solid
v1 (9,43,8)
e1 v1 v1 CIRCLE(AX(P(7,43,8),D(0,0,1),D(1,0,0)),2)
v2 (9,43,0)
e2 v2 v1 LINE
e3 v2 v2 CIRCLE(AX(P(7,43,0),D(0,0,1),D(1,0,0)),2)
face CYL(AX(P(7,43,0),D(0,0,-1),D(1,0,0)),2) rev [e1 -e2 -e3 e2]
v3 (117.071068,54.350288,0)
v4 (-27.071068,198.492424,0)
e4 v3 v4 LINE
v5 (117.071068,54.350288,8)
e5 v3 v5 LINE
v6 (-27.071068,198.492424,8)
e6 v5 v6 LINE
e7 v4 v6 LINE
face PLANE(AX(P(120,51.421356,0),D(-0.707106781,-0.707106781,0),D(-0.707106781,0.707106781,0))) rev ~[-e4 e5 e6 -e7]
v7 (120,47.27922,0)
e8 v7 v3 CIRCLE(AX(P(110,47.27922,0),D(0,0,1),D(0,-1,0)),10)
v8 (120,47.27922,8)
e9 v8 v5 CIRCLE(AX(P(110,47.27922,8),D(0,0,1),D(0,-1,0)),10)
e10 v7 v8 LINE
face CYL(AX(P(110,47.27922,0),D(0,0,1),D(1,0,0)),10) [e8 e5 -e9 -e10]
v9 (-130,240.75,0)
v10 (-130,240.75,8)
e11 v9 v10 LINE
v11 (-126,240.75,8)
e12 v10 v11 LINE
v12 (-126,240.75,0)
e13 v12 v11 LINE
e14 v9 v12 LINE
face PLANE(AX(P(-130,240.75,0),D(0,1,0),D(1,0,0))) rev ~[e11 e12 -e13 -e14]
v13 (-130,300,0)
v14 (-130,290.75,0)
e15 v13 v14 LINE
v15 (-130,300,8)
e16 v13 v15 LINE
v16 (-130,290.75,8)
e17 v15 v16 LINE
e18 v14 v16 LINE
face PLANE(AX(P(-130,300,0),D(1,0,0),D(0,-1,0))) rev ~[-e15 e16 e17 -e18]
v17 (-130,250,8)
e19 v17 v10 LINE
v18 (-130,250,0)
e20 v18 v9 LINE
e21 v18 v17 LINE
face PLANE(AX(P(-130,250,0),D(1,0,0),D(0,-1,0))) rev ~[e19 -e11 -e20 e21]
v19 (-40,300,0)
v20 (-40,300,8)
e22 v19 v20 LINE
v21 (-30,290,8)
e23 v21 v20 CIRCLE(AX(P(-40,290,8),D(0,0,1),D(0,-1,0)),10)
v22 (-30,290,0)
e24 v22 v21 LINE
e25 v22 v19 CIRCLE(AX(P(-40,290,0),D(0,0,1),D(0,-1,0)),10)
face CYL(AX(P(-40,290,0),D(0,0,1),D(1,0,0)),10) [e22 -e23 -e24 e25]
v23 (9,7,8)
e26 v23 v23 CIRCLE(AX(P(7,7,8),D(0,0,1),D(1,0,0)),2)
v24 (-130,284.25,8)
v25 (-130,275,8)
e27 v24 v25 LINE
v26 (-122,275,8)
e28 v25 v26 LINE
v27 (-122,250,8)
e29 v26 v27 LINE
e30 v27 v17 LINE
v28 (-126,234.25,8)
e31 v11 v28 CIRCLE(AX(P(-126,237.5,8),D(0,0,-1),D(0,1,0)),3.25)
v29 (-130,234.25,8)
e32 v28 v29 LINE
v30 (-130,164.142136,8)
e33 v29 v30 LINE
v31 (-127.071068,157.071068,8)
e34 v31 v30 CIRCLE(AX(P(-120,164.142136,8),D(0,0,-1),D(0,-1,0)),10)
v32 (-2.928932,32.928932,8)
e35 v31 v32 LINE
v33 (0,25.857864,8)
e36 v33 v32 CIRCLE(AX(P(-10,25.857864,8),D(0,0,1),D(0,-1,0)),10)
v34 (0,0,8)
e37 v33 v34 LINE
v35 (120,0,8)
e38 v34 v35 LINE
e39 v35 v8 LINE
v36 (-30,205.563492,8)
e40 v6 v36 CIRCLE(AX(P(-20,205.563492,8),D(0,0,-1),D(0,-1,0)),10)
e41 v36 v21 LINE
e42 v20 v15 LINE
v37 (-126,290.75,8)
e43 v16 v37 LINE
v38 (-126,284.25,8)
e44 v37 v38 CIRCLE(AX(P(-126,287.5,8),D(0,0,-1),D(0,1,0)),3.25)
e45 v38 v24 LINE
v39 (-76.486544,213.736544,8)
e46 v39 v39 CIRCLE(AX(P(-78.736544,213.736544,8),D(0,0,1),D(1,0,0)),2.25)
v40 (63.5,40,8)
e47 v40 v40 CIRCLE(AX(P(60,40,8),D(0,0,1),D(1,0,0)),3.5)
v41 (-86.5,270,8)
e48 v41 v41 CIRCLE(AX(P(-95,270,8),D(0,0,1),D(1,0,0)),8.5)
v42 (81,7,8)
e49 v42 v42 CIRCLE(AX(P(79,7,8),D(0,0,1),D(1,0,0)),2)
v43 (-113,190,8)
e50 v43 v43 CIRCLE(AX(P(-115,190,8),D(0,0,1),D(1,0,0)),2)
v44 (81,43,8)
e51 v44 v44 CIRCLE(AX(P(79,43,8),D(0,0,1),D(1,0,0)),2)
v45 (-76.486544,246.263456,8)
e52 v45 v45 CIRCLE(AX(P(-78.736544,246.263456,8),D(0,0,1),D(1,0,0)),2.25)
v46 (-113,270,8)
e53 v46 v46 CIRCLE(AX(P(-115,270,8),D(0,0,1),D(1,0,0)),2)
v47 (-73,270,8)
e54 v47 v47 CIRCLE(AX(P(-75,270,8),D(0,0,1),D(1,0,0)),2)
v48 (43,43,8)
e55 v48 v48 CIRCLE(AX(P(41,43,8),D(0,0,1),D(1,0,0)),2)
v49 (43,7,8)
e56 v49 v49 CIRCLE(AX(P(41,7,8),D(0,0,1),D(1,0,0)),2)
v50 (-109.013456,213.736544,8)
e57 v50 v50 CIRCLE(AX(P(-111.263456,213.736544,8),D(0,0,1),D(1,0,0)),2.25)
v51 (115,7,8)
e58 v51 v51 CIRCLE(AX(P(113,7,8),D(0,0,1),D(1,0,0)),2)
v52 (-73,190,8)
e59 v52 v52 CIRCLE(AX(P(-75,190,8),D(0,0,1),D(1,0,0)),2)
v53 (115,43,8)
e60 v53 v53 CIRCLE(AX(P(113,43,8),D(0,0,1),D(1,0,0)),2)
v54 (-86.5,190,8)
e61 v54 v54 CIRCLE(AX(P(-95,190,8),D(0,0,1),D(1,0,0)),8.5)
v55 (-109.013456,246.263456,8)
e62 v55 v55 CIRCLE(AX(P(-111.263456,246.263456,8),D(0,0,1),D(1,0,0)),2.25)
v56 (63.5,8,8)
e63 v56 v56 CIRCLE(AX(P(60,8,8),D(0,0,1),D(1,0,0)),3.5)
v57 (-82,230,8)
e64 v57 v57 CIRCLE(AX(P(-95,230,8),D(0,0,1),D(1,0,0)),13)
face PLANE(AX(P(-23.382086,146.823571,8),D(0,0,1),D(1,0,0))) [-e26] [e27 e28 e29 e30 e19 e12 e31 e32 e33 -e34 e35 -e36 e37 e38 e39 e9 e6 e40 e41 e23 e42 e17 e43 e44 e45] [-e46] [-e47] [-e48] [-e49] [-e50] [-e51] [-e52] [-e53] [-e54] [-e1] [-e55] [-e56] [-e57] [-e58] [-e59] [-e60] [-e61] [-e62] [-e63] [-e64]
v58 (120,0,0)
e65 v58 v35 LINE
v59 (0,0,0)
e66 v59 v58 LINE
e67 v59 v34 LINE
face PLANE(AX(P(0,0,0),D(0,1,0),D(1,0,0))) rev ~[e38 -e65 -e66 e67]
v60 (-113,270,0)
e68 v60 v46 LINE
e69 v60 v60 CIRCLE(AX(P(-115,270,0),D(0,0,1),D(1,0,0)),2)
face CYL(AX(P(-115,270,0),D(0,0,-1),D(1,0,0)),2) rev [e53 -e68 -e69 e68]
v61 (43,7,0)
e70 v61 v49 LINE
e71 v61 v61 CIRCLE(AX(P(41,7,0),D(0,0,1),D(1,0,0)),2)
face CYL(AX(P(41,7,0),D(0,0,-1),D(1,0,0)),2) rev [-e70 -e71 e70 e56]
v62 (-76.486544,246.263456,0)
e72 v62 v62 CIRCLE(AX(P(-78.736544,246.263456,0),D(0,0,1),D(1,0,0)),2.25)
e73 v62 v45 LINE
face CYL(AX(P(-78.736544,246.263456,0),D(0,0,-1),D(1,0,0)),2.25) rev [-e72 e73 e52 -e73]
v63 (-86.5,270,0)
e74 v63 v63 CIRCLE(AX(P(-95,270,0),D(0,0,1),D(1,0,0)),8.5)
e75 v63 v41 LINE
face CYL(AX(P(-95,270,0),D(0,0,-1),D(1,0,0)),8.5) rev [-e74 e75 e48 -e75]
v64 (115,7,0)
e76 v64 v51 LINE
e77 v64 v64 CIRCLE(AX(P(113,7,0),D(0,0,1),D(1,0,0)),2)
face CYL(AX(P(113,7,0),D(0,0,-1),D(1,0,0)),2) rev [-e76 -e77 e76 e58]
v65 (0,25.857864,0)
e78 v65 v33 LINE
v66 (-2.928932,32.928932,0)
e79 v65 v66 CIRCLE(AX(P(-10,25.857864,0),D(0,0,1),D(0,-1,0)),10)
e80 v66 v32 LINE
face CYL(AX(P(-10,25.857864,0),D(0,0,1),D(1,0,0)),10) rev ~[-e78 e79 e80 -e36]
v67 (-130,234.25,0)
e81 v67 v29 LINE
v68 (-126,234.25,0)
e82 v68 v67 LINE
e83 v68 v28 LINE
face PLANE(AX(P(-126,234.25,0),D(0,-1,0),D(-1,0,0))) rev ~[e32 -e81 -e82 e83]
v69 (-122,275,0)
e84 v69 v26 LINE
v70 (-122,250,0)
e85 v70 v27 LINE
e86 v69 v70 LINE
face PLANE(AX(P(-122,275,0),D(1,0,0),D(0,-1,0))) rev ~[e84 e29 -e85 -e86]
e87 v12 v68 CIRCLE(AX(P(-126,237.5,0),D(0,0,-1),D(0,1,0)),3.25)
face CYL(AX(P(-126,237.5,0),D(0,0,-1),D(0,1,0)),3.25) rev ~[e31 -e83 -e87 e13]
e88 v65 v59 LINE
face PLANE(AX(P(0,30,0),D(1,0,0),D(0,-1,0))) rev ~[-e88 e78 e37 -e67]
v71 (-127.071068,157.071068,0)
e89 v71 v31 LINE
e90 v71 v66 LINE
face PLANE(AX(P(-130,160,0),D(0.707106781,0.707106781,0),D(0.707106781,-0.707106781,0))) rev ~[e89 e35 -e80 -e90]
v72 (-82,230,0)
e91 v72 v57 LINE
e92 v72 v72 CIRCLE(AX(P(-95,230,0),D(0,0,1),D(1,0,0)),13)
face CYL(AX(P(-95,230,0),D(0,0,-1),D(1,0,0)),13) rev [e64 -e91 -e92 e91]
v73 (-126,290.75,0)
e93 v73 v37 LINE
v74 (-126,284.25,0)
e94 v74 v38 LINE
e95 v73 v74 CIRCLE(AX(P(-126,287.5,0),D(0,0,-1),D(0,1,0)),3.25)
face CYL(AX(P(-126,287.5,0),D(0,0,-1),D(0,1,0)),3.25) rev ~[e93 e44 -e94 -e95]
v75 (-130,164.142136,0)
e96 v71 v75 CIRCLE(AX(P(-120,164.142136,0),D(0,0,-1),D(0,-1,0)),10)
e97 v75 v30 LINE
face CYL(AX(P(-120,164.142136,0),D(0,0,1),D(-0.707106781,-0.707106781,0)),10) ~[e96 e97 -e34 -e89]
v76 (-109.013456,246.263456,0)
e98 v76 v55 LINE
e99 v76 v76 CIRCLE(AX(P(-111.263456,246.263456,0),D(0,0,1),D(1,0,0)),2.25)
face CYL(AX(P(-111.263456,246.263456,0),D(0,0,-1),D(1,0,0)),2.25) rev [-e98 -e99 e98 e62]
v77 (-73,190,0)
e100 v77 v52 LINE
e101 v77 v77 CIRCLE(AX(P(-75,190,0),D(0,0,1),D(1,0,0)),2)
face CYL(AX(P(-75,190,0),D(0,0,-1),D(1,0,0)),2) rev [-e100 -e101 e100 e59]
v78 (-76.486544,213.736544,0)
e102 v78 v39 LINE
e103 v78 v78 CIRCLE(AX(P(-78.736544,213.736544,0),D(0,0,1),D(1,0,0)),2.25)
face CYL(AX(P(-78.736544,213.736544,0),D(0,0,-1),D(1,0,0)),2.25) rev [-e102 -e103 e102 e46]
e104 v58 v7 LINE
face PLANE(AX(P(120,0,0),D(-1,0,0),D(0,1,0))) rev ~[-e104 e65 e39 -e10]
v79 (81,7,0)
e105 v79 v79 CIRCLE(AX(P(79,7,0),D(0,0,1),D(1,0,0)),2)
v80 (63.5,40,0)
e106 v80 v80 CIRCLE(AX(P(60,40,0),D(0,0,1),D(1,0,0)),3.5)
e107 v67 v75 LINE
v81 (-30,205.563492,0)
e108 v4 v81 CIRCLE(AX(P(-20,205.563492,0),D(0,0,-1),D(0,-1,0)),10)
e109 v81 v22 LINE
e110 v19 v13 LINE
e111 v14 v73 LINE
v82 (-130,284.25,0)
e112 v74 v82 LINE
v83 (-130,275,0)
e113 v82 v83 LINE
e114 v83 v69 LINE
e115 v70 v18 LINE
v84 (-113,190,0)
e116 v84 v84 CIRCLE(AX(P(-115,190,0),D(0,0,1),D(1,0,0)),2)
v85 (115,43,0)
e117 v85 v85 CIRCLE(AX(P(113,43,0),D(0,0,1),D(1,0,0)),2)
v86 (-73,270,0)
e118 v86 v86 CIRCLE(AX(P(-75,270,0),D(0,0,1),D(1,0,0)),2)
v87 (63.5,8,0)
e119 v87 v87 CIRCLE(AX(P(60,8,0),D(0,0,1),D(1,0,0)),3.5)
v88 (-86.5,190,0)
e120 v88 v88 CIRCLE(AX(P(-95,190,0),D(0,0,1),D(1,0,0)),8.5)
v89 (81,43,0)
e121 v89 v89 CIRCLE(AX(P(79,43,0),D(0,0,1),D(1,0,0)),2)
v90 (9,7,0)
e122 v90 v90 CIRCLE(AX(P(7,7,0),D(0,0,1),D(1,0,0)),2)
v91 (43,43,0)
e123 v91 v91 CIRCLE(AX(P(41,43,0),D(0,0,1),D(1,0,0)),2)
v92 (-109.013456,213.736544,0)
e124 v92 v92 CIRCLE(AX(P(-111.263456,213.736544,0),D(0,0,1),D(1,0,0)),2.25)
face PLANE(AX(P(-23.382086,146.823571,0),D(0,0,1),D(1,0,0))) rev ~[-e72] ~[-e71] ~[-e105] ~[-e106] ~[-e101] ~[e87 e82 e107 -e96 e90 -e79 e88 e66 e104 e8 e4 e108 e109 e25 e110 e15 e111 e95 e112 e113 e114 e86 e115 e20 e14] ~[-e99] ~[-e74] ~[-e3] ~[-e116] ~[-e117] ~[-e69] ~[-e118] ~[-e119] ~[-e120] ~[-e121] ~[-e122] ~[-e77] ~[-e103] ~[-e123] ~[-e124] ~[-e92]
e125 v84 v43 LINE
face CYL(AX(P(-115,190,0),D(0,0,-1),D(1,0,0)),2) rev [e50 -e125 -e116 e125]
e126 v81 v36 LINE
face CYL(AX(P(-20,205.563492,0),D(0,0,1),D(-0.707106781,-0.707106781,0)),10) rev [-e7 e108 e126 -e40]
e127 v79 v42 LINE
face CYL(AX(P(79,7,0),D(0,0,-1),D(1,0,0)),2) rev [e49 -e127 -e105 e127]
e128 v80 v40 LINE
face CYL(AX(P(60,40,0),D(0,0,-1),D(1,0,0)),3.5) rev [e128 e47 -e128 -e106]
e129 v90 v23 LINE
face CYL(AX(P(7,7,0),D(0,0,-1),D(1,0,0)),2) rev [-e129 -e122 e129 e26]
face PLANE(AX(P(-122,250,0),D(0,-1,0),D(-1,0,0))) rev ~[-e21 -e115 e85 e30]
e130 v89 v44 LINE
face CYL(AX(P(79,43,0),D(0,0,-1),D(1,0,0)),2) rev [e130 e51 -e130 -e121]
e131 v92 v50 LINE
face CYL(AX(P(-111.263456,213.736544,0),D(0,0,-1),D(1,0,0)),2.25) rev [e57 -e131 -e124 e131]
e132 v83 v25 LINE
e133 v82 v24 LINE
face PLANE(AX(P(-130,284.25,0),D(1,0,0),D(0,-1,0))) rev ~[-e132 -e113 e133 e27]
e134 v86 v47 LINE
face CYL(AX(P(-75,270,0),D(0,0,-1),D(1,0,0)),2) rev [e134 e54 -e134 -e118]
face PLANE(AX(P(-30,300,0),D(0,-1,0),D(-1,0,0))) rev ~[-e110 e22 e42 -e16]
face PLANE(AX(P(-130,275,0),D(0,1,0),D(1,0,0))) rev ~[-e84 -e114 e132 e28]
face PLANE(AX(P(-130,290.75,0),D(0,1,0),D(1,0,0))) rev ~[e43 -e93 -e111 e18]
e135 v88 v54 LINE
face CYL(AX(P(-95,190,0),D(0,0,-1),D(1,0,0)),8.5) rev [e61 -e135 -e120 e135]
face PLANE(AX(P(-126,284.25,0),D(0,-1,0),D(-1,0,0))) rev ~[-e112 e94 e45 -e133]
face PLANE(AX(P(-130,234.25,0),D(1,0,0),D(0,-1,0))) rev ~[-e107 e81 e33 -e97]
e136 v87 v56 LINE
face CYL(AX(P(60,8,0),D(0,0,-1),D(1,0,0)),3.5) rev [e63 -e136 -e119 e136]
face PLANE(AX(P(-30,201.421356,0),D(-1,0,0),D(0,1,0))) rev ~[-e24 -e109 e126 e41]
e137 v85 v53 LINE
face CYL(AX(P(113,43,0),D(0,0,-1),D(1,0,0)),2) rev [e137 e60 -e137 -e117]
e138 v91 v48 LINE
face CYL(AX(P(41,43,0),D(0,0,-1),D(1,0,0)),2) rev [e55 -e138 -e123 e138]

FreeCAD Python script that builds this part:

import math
import FreeCAD as App
import Part
import Sketcher
Q = App.Units.Quantity


def edges_at(feature, points):
    """Names of the edges that pass closest to the given points."""
    edges = feature.Shape.Edges
    near = lambda p: min(range(len(edges)), key=lambda i: edges[i].distToShape(Part.Vertex(*p))[0])
    return sorted({f"Edge{near(p) + 1}" for p in points})

doc = App.newDocument("Part")
body = doc.addObject("PartDesign::Body", "Body")

sketch1 = body.newObject("Sketcher::SketchObject", "Sketch")
sketch1.AttachmentSupport = (doc.getObject("XY_Plane"), [""])
sketch1.MapMode = "FlatFace"
sketch1.addGeometry([
    Part.LineSegment(App.Vector(0, 30, 0), App.Vector(0, 0, 0)),
    Part.LineSegment(App.Vector(0, 0, 0), App.Vector(120, 0, 0)),
    Part.LineSegment(App.Vector(120, 0, 0), App.Vector(120, 51.421356, 0)),
    Part.LineSegment(App.Vector(120, 51.421356, 0), App.Vector(-30, 201.421356, 0)),
    Part.LineSegment(App.Vector(-30, 201.421356, 0), App.Vector(-30, 300, 0)),
    Part.LineSegment(App.Vector(-30, 300, 0), App.Vector(-130, 300, 0)),
    Part.LineSegment(App.Vector(-130, 300, 0), App.Vector(-130, 290.75, 0)),
    Part.LineSegment(App.Vector(-130, 290.75, 0), App.Vector(-126, 290.75, 0)),
    Part.ArcOfCircle(Part.Circle(App.Vector(-126, 287.5, 0), App.Vector(0, 0, 1), 3.25), math.radians(-90), math.radians(90)),
    Part.LineSegment(App.Vector(-126, 284.25, 0), App.Vector(-130, 284.25, 0)),
    Part.LineSegment(App.Vector(-130, 284.25, 0), App.Vector(-130, 275, 0)),
    Part.LineSegment(App.Vector(-130, 275, 0), App.Vector(-122, 275, 0)),
    Part.LineSegment(App.Vector(-122, 275, 0), App.Vector(-122, 250, 0)),
    Part.LineSegment(App.Vector(-122, 250, 0), App.Vector(-130, 250, 0)),
    Part.LineSegment(App.Vector(-130, 250, 0), App.Vector(-130, 240.75, 0)),
    Part.LineSegment(App.Vector(-130, 240.75, 0), App.Vector(-126, 240.75, 0)),
    Part.ArcOfCircle(Part.Circle(App.Vector(-126, 237.5, 0), App.Vector(0, 0, 1), 3.25), math.radians(-90), math.radians(90)),
    Part.LineSegment(App.Vector(-126, 234.25, 0), App.Vector(-130, 234.25, 0)),
    Part.LineSegment(App.Vector(-130, 234.25, 0), App.Vector(-130, 160, 0)),
    Part.LineSegment(App.Vector(-130, 160, 0), App.Vector(0, 30, 0)),
    Part.Circle(App.Vector(7, 7, 0), App.Vector(0, 0, 1), 2),
    Part.Circle(App.Vector(41, 7, 0), App.Vector(0, 0, 1), 2),
    Part.Circle(App.Vector(7, 43, 0), App.Vector(0, 0, 1), 2),
    Part.Circle(App.Vector(41, 43, 0), App.Vector(0, 0, 1), 2),
    Part.Circle(App.Vector(60, 8, 0), App.Vector(0, 0, 1), 3.5),
    Part.Circle(App.Vector(79, 7, 0), App.Vector(0, 0, 1), 2),
    Part.Circle(App.Vector(113, 7, 0), App.Vector(0, 0, 1), 2),
    Part.Circle(App.Vector(60, 40, 0), App.Vector(0, 0, 1), 3.5),
    Part.Circle(App.Vector(79, 43, 0), App.Vector(0, 0, 1), 2),
    Part.Circle(App.Vector(113, 43, 0), App.Vector(0, 0, 1), 2),
    Part.Circle(App.Vector(-115, 190, 0), App.Vector(0, 0, 1), 2),
    Part.Circle(App.Vector(-95, 190, 0), App.Vector(0, 0, 1), 8.5),
    Part.Circle(App.Vector(-75, 190, 0), App.Vector(0, 0, 1), 2),
    Part.Circle(App.Vector(-111.263456, 213.736544, 0), App.Vector(0, 0, 1), 2.25),
    Part.Circle(App.Vector(-95, 230, 0), App.Vector(0, 0, 1), 13),
    Part.Circle(App.Vector(-78.736544, 213.736544, 0), App.Vector(0, 0, 1), 2.25),
    Part.Circle(App.Vector(-111.263456, 246.263456, 0), App.Vector(0, 0, 1), 2.25),
    Part.Circle(App.Vector(-115, 270, 0), App.Vector(0, 0, 1), 2),
    Part.Circle(App.Vector(-95, 270, 0), App.Vector(0, 0, 1), 8.5),
    Part.Circle(App.Vector(-78.736544, 246.263456, 0), App.Vector(0, 0, 1), 2.25),
    Part.Circle(App.Vector(-75, 270, 0), App.Vector(0, 0, 1), 2),
], False)
sketch1.addConstraint([
    Sketcher.Constraint("Coincident", 0, 2, 1, 1),
    Sketcher.Constraint("Coincident", 1, 2, 2, 1),
    Sketcher.Constraint("Coincident", 2, 2, 3, 1),
    Sketcher.Constraint("Coincident", 3, 2, 4, 1),
    Sketcher.Constraint("Coincident", 4, 2, 5, 1),
    Sketcher.Constraint("Coincident", 5, 2, 6, 1),
    Sketcher.Constraint("Coincident", 6, 2, 7, 1),
    Sketcher.Constraint("Tangent", 7, 2, 8, 2),
    Sketcher.Constraint("Tangent", 8, 1, 9, 1),
    Sketcher.Constraint("Coincident", 9, 2, 10, 1),
    Sketcher.Constraint("Coincident", 10, 2, 11, 1),
    Sketcher.Constraint("Coincident", 11, 2, 12, 1),
    Sketcher.Constraint("Coincident", 12, 2, 13, 1),
    Sketcher.Constraint("Coincident", 13, 2, 14, 1),
    Sketcher.Constraint("Coincident", 14, 2, 15, 1),
    Sketcher.Constraint("Tangent", 15, 2, 16, 2),
    Sketcher.Constraint("Tangent", 16, 1, 17, 1),
    Sketcher.Constraint("Coincident", 17, 2, 18, 1),
    Sketcher.Constraint("Coincident", 18, 2, 19, 1),
    Sketcher.Constraint("Coincident", 19, 2, 0, 1),
    Sketcher.Constraint("Vertical", 0),
    Sketcher.Constraint("Horizontal", 1),
    Sketcher.Constraint("Vertical", 2),
    Sketcher.Constraint("Vertical", 4),
    Sketcher.Constraint("Horizontal", 5),
    Sketcher.Constraint("Vertical", 6),
    Sketcher.Constraint("Horizontal", 7),
    Sketcher.Constraint("Horizontal", 9),
    Sketcher.Constraint("Vertical", 10),
    Sketcher.Constraint("Horizontal", 11),
    Sketcher.Constraint("Vertical", 12),
    Sketcher.Constraint("Horizontal", 13),
    Sketcher.Constraint("Vertical", 14),
    Sketcher.Constraint("Horizontal", 15),
    Sketcher.Constraint("Horizontal", 17),
    Sketcher.Constraint("Vertical", 18),
    Sketcher.Constraint("Coincident", 0, 2, -1, 1),
    Sketcher.Constraint("Equal", 8, 16),
    Sketcher.Constraint("Equal", 20, 21),
    Sketcher.Constraint("Equal", 21, 22),
    Sketcher.Constraint("Equal", 22, 23),
    Sketcher.Constraint("Equal", 23, 25),
    Sketcher.Constraint("Equal", 25, 26),
    Sketcher.Constraint("Equal", 24, 27),
    Sketcher.Constraint("Equal", 26, 28),
    Sketcher.Constraint("Equal", 28, 29),
    Sketcher.Constraint("Equal", 29, 30),
    Sketcher.Constraint("Equal", 30, 32),
    Sketcher.Constraint("Equal", 33, 35),
    Sketcher.Constraint("Equal", 35, 36),
    Sketcher.Constraint("Equal", 32, 37),
    Sketcher.Constraint("Equal", 31, 38),
    Sketcher.Constraint("Equal", 36, 39),
    Sketcher.Constraint("Equal", 37, 40),
    Sketcher.Constraint("Parallel", 3, 19),
    Sketcher.Constraint("Horizontal", 20, 3, 21, 3),
    Sketcher.Constraint("Horizontal", 22, 3, 23, 3),
    Sketcher.Constraint("Horizontal", 21, 3, 25, 3),
    Sketcher.Constraint("Horizontal", 25, 3, 26, 3),
    Sketcher.Constraint("Horizontal", 23, 3, 28, 3),
    Sketcher.Constraint("Horizontal", 28, 3, 29, 3),
    Sketcher.Constraint("Horizontal", 30, 3, 31, 3),
    Sketcher.Constraint("Horizontal", 31, 3, 32, 3),
    Sketcher.Constraint("Horizontal", 33, 3, 35, 3),
    Sketcher.Constraint("Horizontal", 37, 3, 38, 3),
    Sketcher.Constraint("Horizontal", 36, 3, 39, 3),
    Sketcher.Constraint("Horizontal", 38, 3, 40, 3),
    Sketcher.Constraint("Vertical", 8, 3, 16, 3),
    Sketcher.Constraint("Vertical", 20, 3, 22, 3),
    Sketcher.Constraint("Vertical", 21, 3, 23, 3),
    Sketcher.Constraint("Vertical", 24, 3, 27, 3),
    Sketcher.Constraint("Vertical", 25, 3, 28, 3),
    Sketcher.Constraint("Vertical", 26, 3, 29, 3),
    Sketcher.Constraint("Vertical", 31, 3, 34, 3),
    Sketcher.Constraint("Vertical", 33, 3, 36, 3),
    Sketcher.Constraint("Vertical", 30, 3, 37, 3),
    Sketcher.Constraint("Vertical", 34, 3, 38, 3),
    Sketcher.Constraint("Vertical", 35, 3, 39, 3),
    Sketcher.Constraint("Vertical", 32, 3, 40, 3),
    Sketcher.Constraint("Vertical", 6, 2, 9, 2),
    Sketcher.Constraint("Vertical", 10, 2, 13, 2),
    Sketcher.Constraint("Vertical", 14, 2, 17, 2),
    Sketcher.Constraint("Equal", 6, 10),
    Sketcher.Constraint("Equal", 10, 14),
    Sketcher.Constraint("Diameter", 20, 4.0),
    Sketcher.Constraint("Diameter", 24, 7.0),
    Sketcher.Constraint("Diameter", 31, 17.0),
    Sketcher.Constraint("Diameter", 34, 26.0),
    Sketcher.Constraint("Diameter", 33, 4.5),
    Sketcher.Constraint("DistanceX", 1, 1, 1, 2, 120.0),
    Sketcher.Constraint("DistanceX", 5, 2, 5, 1, 100.0),
    Sketcher.Constraint("DistanceX", 7, 1, 7, 2, 4.0),
    Sketcher.Constraint("DistanceX", 11, 1, 11, 2, 8.0),
    Sketcher.Constraint("DistanceY", 0, 2, 0, 1, 30.0),
    Sketcher.Constraint("DistanceY", 12, 2, 12, 1, 25.0),
    Sketcher.Constraint("Angle", 3, Q("135 deg")),
    Sketcher.Constraint("Radius", 8, 3.25),
    Sketcher.Constraint("DistanceX", 8, 3, -1, 1, 126.0),
    Sketcher.Constraint("DistanceX", -1, 1, 20, 3, 7.0),
    Sketcher.Constraint("DistanceY", -1, 1, 20, 3, 7.0),
    Sketcher.Constraint("DistanceX", -1, 1, 21, 3, 41.0),
    Sketcher.Constraint("DistanceY", -1, 1, 22, 3, 43.0),
    Sketcher.Constraint("DistanceX", -1, 1, 24, 3, 60.0),
    Sketcher.Constraint("DistanceY", -1, 1, 24, 3, 8.0),
    Sketcher.Constraint("DistanceX", -1, 1, 25, 3, 79.0),
    Sketcher.Constraint("DistanceX", -1, 1, 26, 3, 113.0),
    Sketcher.Constraint("DistanceY", -1, 1, 27, 3, 40.0),
    Sketcher.Constraint("DistanceX", 30, 3, -1, 1, 115.0),
    Sketcher.Constraint("DistanceY", -1, 1, 30, 3, 190.0),
    Sketcher.Constraint("DistanceX", 31, 3, -1, 1, 95.0),
    Sketcher.Constraint("DistanceX", 32, 3, -1, 1, 75.0),
    Sketcher.Constraint("DistanceY", -1, 1, 34, 3, 230.0),
    Sketcher.Constraint("DistanceY", -1, 1, 37, 3, 270.0),
    Sketcher.Constraint("DistanceY", -1, 1, 4, 2, 300.0),
    Sketcher.Constraint("DistanceY", -1, 1, 10, 2, 275.0),
    Sketcher.Constraint("DistanceY", 3, 2, 39, 3, 44.8421),
    Sketcher.Constraint("DistanceY", 2, 1, 2, 2, 51.421356),
    Sketcher.Constraint("DistanceY", 33, 3, 36, 3, 32.526912),
    Sketcher.Constraint("DistanceX", 33, 3, -1, 1, 111.263456),
    Sketcher.Constraint("DistanceX", 35, 3, -1, 1, 78.736544),
])
pad1 = body.newObject("PartDesign::Pad", "Pad")
pad1.Profile = sketch1
pad1.Length = 8
doc.recompute()

fillet = body.newObject("PartDesign::Fillet", "Fillet")
fillet.Base = (pad1, edges_at(pad1, [
    (-30, 300, 4),
    (-30, 201.421, 4),
    (-130, 160, 4),
    (0, 30, 4),
    (120, 51.421, 4),
]))
fillet.Radius = 10

doc.recompute()
